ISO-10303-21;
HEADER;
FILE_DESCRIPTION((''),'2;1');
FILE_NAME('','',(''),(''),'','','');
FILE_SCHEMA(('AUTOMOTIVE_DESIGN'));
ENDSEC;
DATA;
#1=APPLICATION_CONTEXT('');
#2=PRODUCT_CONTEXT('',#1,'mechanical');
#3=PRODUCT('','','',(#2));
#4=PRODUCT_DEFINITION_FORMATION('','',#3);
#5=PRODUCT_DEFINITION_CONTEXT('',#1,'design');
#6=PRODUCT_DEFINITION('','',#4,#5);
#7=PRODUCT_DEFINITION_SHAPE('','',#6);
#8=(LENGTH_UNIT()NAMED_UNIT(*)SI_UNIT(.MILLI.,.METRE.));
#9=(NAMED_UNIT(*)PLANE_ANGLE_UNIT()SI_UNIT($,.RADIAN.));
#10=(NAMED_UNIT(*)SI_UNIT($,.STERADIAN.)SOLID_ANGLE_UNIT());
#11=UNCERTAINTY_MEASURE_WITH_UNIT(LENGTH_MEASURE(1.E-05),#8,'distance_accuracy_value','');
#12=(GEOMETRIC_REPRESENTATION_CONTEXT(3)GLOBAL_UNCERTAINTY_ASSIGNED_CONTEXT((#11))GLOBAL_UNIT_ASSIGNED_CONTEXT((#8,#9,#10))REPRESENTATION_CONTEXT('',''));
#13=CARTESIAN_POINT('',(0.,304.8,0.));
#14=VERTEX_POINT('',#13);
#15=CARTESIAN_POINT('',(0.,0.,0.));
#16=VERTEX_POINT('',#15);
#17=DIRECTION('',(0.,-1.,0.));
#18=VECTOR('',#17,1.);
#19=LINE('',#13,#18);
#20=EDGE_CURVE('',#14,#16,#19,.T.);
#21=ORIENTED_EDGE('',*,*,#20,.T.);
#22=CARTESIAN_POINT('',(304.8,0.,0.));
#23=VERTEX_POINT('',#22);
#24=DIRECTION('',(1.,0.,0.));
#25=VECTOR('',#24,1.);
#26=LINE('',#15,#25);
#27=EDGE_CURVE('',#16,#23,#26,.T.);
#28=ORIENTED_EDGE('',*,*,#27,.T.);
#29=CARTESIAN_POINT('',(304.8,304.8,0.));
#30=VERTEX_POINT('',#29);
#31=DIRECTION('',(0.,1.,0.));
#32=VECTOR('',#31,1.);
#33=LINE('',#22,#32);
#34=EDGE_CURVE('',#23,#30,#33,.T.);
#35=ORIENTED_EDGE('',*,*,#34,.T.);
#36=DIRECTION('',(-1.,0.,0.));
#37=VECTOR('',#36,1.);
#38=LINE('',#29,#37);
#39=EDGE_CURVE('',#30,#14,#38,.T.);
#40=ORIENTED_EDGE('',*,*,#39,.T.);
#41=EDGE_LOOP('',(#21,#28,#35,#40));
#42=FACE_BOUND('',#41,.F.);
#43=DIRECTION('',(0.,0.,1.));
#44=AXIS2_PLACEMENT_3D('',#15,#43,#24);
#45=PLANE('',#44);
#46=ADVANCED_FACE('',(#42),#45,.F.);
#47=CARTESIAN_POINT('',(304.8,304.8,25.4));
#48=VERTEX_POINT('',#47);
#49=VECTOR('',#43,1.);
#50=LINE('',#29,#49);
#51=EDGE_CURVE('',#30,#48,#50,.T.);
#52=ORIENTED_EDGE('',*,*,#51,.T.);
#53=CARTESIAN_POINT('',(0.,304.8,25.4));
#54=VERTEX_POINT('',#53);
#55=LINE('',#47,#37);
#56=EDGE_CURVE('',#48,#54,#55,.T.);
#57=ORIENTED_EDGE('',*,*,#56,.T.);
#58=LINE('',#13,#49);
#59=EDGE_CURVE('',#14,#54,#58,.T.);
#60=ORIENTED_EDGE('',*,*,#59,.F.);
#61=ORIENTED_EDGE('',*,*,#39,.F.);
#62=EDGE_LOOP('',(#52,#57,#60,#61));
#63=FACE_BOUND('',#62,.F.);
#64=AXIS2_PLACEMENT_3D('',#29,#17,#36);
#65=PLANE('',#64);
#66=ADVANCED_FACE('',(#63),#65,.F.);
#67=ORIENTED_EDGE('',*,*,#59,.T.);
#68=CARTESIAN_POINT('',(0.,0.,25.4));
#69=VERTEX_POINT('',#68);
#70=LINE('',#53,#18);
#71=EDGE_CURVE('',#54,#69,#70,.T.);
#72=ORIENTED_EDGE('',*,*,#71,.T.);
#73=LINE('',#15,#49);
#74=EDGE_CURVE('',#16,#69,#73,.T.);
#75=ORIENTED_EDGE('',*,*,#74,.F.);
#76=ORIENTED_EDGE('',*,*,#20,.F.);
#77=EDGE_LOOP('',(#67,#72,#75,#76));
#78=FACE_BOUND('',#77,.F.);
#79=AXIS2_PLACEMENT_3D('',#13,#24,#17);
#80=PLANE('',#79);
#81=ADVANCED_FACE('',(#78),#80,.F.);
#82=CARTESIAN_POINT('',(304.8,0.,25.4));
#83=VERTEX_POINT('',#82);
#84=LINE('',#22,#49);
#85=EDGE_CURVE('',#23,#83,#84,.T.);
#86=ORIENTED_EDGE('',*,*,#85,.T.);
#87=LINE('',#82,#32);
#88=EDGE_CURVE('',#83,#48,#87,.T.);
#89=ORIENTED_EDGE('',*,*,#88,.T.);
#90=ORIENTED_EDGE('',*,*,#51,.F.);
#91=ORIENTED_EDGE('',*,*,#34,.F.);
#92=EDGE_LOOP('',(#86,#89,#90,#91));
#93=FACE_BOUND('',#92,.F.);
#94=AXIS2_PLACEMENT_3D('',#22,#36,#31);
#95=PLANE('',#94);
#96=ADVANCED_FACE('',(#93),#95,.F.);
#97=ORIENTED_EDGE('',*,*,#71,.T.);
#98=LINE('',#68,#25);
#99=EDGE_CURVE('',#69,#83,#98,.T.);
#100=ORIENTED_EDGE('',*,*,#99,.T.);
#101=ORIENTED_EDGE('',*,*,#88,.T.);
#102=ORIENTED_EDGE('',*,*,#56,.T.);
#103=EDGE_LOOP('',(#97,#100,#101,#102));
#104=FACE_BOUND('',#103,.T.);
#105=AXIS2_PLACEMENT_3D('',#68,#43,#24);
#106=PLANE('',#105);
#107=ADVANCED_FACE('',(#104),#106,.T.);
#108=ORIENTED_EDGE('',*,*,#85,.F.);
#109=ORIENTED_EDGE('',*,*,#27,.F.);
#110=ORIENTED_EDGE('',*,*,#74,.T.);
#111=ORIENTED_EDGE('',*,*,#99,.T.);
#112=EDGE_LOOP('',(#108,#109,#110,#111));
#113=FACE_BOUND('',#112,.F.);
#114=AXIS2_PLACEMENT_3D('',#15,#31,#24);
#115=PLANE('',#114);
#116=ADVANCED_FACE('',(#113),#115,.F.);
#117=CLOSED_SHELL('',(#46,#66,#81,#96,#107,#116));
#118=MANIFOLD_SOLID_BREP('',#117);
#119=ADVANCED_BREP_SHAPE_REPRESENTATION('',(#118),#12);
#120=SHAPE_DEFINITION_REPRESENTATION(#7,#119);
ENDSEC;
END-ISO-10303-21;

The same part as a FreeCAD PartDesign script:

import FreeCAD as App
import Part
import Sketcher
Q = App.Units.Quantity

doc = App.newDocument("Part")
body = doc.addObject("PartDesign::Body", "Body")

# Sketch on XY plane
sketch1 = doc.addObject("Sketcher::SketchObject", "Sketch")
body.addObject(sketch1)
sketch1.AttachmentSupport = (doc.XY_Plane, [""])
sketch1.MapMode = "FlatFace"
sketch1.addGeometry(Part.LineSegment(App.Vector(0, 305, 0), App.Vector(0, 0, 0)), False)
sketch1.addGeometry(Part.LineSegment(App.Vector(0, 0, 0), App.Vector(305, 0, 0)), False)
sketch1.addGeometry(Part.LineSegment(App.Vector(305, 0, 0), App.Vector(305, 305, 0)), False)
sketch1.addGeometry(Part.LineSegment(App.Vector(305, 305, 0), App.Vector(0, 305, 0)), False)
sketch1.addConstraint(Sketcher.Constraint("Coincident", 0, 2, 1, 1))
sketch1.addConstraint(Sketcher.Constraint("Coincident", 1, 2, 2, 1))
sketch1.addConstraint(Sketcher.Constraint("Coincident", 2, 2, 3, 1))
sketch1.addConstraint(Sketcher.Constraint("Coincident", 3, 2, 0, 1))
sketch1.addConstraint(Sketcher.Constraint("Vertical", 0))
sketch1.addConstraint(Sketcher.Constraint("Horizontal", 1))
sketch1.addConstraint(Sketcher.Constraint("Vertical", 2))
sketch1.addConstraint(Sketcher.Constraint("Horizontal", 3))
sketch1.addConstraint(Sketcher.Constraint("Coincident", 0, 2, -1, 1))
sketch1.addConstraint(Sketcher.Constraint("Equal", 3, 0))
sketch1.addConstraint(Sketcher.Constraint("DistanceX", 1, 1, 1, 2, Q("12 in")))
pad1 = doc.addObject("PartDesign::Pad", "Pad")
body.addObject(pad1)
pad1.Profile = sketch1
pad1.Length = Q("1 in")

doc.recompute()
